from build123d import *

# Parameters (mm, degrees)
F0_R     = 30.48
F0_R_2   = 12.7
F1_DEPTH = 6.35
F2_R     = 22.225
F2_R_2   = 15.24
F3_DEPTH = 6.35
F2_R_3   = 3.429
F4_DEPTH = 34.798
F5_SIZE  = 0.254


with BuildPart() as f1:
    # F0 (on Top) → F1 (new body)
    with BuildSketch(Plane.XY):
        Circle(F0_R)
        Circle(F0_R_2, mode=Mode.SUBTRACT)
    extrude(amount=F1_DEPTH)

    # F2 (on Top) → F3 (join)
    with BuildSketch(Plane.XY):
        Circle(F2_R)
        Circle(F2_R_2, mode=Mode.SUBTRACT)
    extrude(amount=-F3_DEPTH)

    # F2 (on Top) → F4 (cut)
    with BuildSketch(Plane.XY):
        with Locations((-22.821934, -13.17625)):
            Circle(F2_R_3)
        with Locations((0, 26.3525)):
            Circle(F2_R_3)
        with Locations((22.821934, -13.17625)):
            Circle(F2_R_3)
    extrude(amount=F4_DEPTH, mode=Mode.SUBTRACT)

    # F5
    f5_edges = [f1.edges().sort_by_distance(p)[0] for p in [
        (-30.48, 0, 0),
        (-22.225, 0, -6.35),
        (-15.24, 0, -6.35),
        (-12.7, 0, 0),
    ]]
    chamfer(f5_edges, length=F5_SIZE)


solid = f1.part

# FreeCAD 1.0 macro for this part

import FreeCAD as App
import Part
import Sketcher
from FreeCAD import Vector
Q = App.Units.Quantity


def edges_at(feature, points):
    """Names of the edges that pass closest to the given points."""
    edges = feature.Shape.Edges
    near = lambda p: min(range(len(edges)), key=lambda i: edges[i].distToShape(Part.Vertex(*p))[0])
    return sorted({f"Edge{near(p) + 1}" for p in points})

doc = App.newDocument("Part")
params = doc.addObject("Spreadsheet::Sheet", "Params")
for row, (alias, value) in enumerate([
    ("sketch1_diameter", "1 in"),
    ("sketch1_diameter2", "2.4 in"),
    ("pad1_length", "0.25 in"),
    ("sketch2_diameter", "1.2 in"),
    ("sketch2_diameter2", "1.75 in"),
    ("pad2_length", "0.25 in"),
    ("sketch3_diameter", "0.27 in"),
    ("pocket1_length", "1.37 in"),
    ("chamfer_size", "0.01 in"),
], start=1):
    params.set(f"A{row}", alias)
    params.set(f"B{row}", "=" + value)
    params.setAlias(f"B{row}", alias)

body = doc.addObject("PartDesign::Body", "Body")

sketch1 = body.newObject("Sketcher::SketchObject", "Sketch")
sketch1.AttachmentSupport = (doc.getObject("XY_Plane"), [""])
sketch1.MapMode = "FlatFace"
sketch1.addGeometry([
    Part.Circle(Vector(0, 0, 0), Vector(0, 0, 1), 30),
    Part.Circle(Vector(0, 0, 0), Vector(0, 0, 1), 13),
], False)
sketch1.addConstraint([
    Sketcher.Constraint("Coincident", 0, 3, -1, 1),
    Sketcher.Constraint("Coincident", 1, 3, -1, 1),
    Sketcher.Constraint("Diameter", 1, Q("1 in")),
    Sketcher.Constraint("Diameter", 0, Q("2.4 in")),
])
sketch1.setExpression("Constraints[2]", "Params.sketch1_diameter")
sketch1.setExpression("Constraints[3]", "Params.sketch1_diameter2")
pad1 = body.newObject("PartDesign::Pad", "Pad")
pad1.Profile = sketch1
pad1.setExpression("Length", "Params.pad1_length")

sketch2 = body.newObject("Sketcher::SketchObject", "Sketch001")
sketch2.AttachmentSupport = (doc.getObject("XY_Plane"), [""])
sketch2.MapMode = "FlatFace"
sketch2.addGeometry([
    Part.Circle(Vector(0, 0, 0), Vector(0, 0, 1), 22),
    Part.Circle(Vector(0, 0, 0), Vector(0, 0, 1), 15),
], False)
sketch2.addConstraint([
    Sketcher.Constraint("Coincident", 0, 3, -1, 1),
    Sketcher.Constraint("Coincident", 1, 3, -1, 1),
    Sketcher.Constraint("Diameter", 1, Q("1.2 in")),
    Sketcher.Constraint("Diameter", 0, Q("1.75 in")),
])
sketch2.setExpression("Constraints[2]", "Params.sketch2_diameter")
sketch2.setExpression("Constraints[3]", "Params.sketch2_diameter2")
pad2 = body.newObject("PartDesign::Pad", "Pad001")
pad2.Profile = sketch2
pad2.setExpression("Length", "Params.pad2_length")
pad2.Reversed = True

sketch3 = body.newObject("Sketcher::SketchObject", "Sketch002")
sketch3.AttachmentSupport = (doc.getObject("XY_Plane"), [""])
sketch3.MapMode = "FlatFace"
sketch3.addGeometry([
    Part.Circle(Vector(-22.8, -13.2, 0), Vector(0, 0, 1), 3.4),
    Part.Circle(Vector(0, 26.4, 0), Vector(0, 0, 1), 3.4),
    Part.Circle(Vector(22.8, -13.2, 0), Vector(0, 0, 1), 3.4),
], False)
sketch3.addConstraint([
    Sketcher.Constraint("Equal", 0, 1),
    Sketcher.Constraint("Equal", 1, 2),
    Sketcher.Constraint("Symmetric", 0, 3, 2, 3, -2),
    Sketcher.Constraint("PointOnObject", 1, 3, -2),
    Sketcher.Constraint("Diameter", 0, Q("0.27 in")),
    Sketcher.Constraint("DistanceY", -1, 1, 1, 3, Q("1.0375 in")),
    Sketcher.Constraint("DistanceY", 0, 3, -1, 1, 13.17625),
    Sketcher.Constraint("DistanceX", 0, 3, -1, 1, 22.821934),
])
sketch3.setExpression("Constraints[4]", "Params.sketch3_diameter")
pocket1 = body.newObject("PartDesign::Pocket", "Pocket")
pocket1.Profile = sketch3
pocket1.setExpression("Length", "Params.pocket1_length")
pocket1.Reversed = True
doc.recompute()

chamfer = body.newObject("PartDesign::Chamfer", "Chamfer")
chamfer.Base = (pocket1, edges_at(pocket1, [
    (-30.48, 0, 0),
    (-22.225, 0, -6.35),
    (-15.24, 0, -6.35),
    (-12.7, 0, 0),
]))
chamfer.setExpression("Size", "Params.chamfer_size")

doc.recompute()
